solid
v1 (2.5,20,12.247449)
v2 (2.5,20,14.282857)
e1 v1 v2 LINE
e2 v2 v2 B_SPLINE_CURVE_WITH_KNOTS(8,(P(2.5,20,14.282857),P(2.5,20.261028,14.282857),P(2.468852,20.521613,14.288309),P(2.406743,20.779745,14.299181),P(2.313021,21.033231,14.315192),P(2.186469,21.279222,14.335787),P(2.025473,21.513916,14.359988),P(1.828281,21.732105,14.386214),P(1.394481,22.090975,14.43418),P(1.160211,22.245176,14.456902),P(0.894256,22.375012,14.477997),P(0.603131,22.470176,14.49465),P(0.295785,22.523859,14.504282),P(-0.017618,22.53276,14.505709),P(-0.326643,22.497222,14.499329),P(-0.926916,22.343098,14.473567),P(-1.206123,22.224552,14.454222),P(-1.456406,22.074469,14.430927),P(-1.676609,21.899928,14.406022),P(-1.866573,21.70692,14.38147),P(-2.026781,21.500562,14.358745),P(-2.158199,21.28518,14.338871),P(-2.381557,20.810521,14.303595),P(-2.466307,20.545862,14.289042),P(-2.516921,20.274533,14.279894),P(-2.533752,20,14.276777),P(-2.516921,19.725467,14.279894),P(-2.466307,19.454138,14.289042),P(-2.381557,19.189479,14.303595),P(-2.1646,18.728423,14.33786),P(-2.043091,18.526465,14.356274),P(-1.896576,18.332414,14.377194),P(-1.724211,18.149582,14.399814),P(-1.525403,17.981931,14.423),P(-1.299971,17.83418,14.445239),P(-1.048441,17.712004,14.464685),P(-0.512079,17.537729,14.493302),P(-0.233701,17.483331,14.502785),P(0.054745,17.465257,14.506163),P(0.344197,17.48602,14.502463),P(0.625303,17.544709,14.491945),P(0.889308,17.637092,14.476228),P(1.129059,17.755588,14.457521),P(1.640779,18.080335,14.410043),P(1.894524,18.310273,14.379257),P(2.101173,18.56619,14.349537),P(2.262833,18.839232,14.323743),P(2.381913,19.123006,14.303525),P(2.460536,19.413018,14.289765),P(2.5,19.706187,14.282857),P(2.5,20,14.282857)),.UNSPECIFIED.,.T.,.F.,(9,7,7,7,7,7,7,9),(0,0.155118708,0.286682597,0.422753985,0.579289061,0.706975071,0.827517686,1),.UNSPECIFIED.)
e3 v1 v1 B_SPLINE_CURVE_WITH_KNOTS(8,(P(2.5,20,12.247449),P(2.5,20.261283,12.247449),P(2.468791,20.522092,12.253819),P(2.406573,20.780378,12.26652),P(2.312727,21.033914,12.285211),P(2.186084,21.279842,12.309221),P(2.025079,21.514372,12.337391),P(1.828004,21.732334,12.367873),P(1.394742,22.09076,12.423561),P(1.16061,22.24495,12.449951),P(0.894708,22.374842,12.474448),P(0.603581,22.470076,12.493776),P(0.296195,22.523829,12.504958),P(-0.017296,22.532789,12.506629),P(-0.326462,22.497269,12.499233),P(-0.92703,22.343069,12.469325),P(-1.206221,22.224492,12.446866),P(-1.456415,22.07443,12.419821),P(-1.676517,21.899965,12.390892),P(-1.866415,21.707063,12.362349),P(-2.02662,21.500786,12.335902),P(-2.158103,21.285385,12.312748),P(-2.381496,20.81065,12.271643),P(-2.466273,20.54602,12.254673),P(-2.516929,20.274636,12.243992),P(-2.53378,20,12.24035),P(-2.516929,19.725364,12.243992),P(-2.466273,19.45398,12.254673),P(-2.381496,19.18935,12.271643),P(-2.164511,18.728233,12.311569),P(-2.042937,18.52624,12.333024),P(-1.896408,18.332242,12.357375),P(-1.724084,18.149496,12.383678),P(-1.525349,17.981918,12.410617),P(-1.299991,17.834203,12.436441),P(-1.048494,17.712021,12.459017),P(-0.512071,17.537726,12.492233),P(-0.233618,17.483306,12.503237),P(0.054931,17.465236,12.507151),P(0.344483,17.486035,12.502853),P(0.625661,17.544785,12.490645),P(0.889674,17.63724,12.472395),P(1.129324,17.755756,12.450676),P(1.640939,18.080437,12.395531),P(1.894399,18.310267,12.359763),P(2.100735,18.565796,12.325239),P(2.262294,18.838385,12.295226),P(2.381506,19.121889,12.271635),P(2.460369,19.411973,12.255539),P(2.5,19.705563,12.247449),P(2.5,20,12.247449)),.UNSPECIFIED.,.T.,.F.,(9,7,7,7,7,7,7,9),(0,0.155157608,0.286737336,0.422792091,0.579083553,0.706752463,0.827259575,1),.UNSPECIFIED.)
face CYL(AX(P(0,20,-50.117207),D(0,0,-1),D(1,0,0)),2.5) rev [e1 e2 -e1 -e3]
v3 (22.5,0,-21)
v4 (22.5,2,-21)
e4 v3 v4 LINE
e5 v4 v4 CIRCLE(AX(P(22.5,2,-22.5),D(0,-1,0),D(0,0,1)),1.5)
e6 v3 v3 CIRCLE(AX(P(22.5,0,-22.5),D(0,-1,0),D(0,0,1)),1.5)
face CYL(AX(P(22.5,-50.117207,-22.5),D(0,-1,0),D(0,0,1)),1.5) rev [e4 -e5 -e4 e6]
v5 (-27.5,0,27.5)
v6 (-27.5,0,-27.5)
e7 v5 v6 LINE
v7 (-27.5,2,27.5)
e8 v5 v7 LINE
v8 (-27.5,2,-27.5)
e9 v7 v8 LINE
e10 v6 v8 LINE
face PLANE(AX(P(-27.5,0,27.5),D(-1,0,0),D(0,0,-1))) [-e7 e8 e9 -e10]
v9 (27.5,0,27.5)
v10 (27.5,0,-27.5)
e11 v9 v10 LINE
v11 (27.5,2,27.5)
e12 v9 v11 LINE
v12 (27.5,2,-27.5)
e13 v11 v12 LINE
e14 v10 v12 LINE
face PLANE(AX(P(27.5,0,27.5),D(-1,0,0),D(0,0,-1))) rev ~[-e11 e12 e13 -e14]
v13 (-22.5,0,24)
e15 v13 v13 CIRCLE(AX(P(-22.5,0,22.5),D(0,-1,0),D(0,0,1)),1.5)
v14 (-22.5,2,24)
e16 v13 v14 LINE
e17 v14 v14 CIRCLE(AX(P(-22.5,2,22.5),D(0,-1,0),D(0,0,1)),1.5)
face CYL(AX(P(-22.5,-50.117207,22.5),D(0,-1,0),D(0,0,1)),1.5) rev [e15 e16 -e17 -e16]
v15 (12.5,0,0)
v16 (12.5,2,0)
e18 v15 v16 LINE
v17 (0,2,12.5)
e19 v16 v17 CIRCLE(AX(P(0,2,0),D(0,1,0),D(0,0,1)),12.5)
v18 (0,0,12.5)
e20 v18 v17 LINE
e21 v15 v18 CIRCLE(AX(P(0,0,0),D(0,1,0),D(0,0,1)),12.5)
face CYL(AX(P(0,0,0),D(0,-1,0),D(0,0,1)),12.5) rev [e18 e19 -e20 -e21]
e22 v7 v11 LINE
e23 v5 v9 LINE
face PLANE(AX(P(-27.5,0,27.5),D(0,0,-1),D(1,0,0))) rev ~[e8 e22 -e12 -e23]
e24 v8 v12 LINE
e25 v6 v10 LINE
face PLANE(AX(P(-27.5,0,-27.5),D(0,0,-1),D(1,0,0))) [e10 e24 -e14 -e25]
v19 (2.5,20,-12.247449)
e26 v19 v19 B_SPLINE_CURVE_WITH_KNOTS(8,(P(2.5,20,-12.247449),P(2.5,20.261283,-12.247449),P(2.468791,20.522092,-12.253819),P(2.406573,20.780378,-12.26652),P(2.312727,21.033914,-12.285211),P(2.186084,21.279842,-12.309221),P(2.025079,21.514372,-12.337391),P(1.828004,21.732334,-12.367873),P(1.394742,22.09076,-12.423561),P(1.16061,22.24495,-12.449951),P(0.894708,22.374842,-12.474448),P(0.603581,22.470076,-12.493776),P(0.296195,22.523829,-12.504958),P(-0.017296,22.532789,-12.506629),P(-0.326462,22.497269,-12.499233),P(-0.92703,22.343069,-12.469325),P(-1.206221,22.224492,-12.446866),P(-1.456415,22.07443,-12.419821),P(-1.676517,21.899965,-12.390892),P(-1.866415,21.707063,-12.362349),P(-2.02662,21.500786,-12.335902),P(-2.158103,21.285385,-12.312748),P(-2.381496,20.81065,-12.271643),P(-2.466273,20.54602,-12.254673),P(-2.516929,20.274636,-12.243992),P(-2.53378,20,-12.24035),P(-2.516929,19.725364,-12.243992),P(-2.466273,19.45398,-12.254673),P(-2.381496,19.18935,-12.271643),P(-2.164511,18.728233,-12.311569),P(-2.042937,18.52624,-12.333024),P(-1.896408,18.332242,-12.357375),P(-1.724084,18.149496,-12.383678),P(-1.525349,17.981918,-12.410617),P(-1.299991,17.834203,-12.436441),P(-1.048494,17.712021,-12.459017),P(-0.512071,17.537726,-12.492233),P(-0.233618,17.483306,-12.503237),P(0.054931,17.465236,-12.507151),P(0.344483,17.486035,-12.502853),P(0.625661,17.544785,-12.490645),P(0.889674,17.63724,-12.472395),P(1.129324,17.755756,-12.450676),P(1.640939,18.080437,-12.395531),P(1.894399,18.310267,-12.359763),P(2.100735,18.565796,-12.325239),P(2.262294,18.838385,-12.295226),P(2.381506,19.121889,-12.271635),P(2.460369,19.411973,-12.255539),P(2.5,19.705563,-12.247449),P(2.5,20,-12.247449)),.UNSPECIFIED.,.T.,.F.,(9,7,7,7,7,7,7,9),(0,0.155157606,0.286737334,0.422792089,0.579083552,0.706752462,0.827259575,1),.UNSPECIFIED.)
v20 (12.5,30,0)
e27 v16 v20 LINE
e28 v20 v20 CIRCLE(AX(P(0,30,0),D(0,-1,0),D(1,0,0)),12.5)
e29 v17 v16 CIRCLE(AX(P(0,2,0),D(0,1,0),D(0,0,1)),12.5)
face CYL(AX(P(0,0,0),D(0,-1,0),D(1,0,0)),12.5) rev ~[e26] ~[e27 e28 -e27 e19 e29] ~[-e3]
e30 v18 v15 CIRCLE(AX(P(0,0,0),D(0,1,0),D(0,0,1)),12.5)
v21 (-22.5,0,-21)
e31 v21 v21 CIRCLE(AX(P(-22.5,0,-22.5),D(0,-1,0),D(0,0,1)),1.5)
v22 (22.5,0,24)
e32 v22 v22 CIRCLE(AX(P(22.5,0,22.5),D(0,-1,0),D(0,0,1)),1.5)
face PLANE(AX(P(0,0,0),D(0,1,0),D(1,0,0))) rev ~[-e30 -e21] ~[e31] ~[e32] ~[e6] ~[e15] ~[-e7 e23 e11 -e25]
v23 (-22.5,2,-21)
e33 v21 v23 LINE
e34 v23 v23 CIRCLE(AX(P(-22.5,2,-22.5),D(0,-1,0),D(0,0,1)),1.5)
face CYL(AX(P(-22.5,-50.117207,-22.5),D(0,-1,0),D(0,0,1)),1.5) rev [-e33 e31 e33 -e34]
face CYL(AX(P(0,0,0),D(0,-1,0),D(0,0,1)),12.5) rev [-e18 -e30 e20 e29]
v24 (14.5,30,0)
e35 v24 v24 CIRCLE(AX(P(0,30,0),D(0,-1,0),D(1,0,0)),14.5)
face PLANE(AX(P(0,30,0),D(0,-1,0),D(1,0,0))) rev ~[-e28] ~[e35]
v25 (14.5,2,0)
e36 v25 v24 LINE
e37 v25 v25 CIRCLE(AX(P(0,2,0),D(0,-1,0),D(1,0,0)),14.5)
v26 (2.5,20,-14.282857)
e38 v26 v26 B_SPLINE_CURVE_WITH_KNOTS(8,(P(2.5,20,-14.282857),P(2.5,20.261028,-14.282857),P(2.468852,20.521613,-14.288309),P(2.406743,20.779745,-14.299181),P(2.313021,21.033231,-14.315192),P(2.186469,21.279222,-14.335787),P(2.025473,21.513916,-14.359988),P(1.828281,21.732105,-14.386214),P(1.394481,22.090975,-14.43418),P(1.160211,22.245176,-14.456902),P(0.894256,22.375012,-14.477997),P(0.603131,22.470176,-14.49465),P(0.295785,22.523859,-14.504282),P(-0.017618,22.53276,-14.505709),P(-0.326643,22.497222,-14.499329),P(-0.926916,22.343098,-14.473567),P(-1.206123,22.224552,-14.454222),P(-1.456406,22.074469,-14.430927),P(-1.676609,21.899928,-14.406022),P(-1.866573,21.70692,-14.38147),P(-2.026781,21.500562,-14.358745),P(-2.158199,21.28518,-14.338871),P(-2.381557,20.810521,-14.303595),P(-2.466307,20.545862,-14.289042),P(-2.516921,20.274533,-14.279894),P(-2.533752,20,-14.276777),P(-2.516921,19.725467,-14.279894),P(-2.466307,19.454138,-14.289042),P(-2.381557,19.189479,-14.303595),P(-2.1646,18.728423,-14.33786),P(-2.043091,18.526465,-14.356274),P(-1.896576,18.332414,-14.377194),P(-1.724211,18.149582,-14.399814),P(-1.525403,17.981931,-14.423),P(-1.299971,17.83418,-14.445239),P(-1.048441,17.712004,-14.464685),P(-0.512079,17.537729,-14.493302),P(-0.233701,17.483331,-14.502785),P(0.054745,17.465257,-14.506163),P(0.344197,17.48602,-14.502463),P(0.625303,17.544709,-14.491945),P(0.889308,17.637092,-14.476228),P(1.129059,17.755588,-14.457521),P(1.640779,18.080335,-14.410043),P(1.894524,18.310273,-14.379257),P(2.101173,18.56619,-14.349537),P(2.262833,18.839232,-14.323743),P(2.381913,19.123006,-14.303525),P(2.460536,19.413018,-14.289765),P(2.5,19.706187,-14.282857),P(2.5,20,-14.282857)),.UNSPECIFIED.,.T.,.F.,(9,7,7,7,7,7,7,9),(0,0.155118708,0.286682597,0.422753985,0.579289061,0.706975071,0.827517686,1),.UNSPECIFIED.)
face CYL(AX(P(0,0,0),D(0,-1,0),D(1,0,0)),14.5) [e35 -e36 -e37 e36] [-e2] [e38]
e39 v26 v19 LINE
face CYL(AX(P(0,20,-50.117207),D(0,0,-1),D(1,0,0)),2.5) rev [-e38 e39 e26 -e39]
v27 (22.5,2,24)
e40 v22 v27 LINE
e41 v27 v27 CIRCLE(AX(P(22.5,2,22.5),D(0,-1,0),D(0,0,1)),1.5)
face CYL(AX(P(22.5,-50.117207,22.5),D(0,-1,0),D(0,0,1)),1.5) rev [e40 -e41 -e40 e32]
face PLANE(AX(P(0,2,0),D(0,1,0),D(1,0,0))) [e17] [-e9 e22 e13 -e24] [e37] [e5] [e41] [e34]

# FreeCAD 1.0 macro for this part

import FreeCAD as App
import Part
import Sketcher

V = App.Vector


def add_polygon(sketch, points):
    """Adds a closed chain of lines whose ends are joined by coincident constraints."""
    first, n = sketch.GeometryCount, len(points)
    for a, b in zip(points, points[1:] + points[:1]):
        sketch.addGeometry(Part.LineSegment(App.Vector(*a, 0), App.Vector(*b, 0)), False)
    for i in range(n):
        sketch.addConstraint(Sketcher.Constraint("Coincident", first + i, 2, first + (i + 1) % n, 1))

doc = App.newDocument("Part")
body = doc.addObject("PartDesign::Body", "Body")

sketch1 = doc.addObject("Sketcher::SketchObject", "Sketch")
body.addObject(sketch1)
sketch1.AttachmentSupport = (doc.XZ_Plane, [""])
sketch1.MapMode = "FlatFace"
add_polygon(sketch1, [(-28, -28), (-28, 28), (28, 28), (28, -28)])
sketch1.addGeometry(Part.Circle(V(0, 0, 0), V(0, 0, 1), 12), False)
sketch1.addConstraint([
    Sketcher.Constraint("Vertical", 0),
    Sketcher.Constraint("Horizontal", 1),
    Sketcher.Constraint("Vertical", 2),
    Sketcher.Constraint("Horizontal", 3),
    Sketcher.Constraint("Coincident", 4, 3, -1, 1),
    Sketcher.Constraint("Symmetric", 0, 2, 2, 2, -1, 1),
    Sketcher.Constraint("Equal", 3, 0),
    Sketcher.Constraint("Diameter", 4, 25.0),
    Sketcher.Constraint("DistanceX", 1, 1, 1, 2, 55.0),
])
pad1 = doc.addObject("PartDesign::Pad", "Pad")
body.addObject(pad1)
pad1.Profile = sketch1
pad1.Length = 2
pad1.Reversed = True

sketch2 = doc.addObject("Sketcher::SketchObject", "Sketch001")
body.addObject(sketch2)
sketch2.AttachmentSupport = (doc.XZ_Plane, [""])
sketch2.MapMode = "FlatFace"
sketch2.addGeometry([
    Part.Circle(V(0, 0, 0), V(0, 0, 1), 14),
    Part.Circle(V(0, 0, 0), V(0, 0, 1), 12),
], False)
sketch2.addConstraint([
    Sketcher.Constraint("Coincident", 0, 3, -1, 1),
    Sketcher.Constraint("Coincident", 1, 3, -1, 1),
    Sketcher.Constraint("Diameter", 0, 29.0),
    Sketcher.Constraint("Diameter", 1, 25.0),
])
pad2 = doc.addObject("PartDesign::Pad", "Pad001")
body.addObject(pad2)
pad2.Profile = sketch2
pad2.Length = 30
pad2.Reversed = True

sketch3 = doc.addObject("Sketcher::SketchObject", "Sketch002")
body.addObject(sketch3)
sketch3.AttachmentSupport = (doc.XY_Plane, [""])
sketch3.MapMode = "FlatFace"
sketch3.addGeometry(Part.Circle(V(0, 20, 0), V(0, 0, 1), 2.5), False)
sketch3.addConstraint([
    Sketcher.Constraint("PointOnObject", 0, 3, -2),
    Sketcher.Constraint("Diameter", 0, 5.0),
    Sketcher.Constraint("DistanceY", -1, 1, 0, 3, 20.0),
])
pocket1 = doc.addObject("PartDesign::Pocket", "Pocket")
body.addObject(pocket1)
pocket1.Profile = sketch3
pocket1.Type = "ThroughAll"
pocket1.Midplane = True

sketch4 = doc.addObject("Sketcher::SketchObject", "Sketch003")
body.addObject(sketch4)
sketch4.AttachmentSupport = (doc.XZ_Plane, [""])
sketch4.MapMode = "FlatFace"
sketch4.addGeometry([
    Part.Circle(V(-22.5, -22.5, 0), V(0, 0, 1), 1.5),
    Part.Circle(V(22.5, -22.5, 0), V(0, 0, 1), 1.5),
    Part.Circle(V(22.5, 22.5, 0), V(0, 0, 1), 1.5),
    Part.Circle(V(-22.5, 22.5, 0), V(0, 0, 1), 1.5),
], False)
sketch4.addConstraint([
    Sketcher.Constraint("Equal", 0, 1),
    Sketcher.Constraint("Equal", 1, 2),
    Sketcher.Constraint("Equal", 2, 3),
    Sketcher.Constraint("Symmetric", 0, 3, 2, 3, -1, 1),
    Sketcher.Constraint("Symmetric", 1, 3, 3, 3, -1, 1),
    Sketcher.Constraint("Symmetric", 0, 3, 1, 3, -2),
    Sketcher.Constraint("Diameter", 0, 3.0),
    Sketcher.Constraint("DistanceX", 0, 3, 1, 3, 45.0),
    Sketcher.Constraint("DistanceY", 1, 3, 2, 3, 45.0),
])
pocket2 = doc.addObject("PartDesign::Pocket", "Pocket001")
body.addObject(pocket2)
pocket2.Profile = sketch4
pocket2.Type = "ThroughAll"
pocket2.Midplane = True

doc.recompute()
